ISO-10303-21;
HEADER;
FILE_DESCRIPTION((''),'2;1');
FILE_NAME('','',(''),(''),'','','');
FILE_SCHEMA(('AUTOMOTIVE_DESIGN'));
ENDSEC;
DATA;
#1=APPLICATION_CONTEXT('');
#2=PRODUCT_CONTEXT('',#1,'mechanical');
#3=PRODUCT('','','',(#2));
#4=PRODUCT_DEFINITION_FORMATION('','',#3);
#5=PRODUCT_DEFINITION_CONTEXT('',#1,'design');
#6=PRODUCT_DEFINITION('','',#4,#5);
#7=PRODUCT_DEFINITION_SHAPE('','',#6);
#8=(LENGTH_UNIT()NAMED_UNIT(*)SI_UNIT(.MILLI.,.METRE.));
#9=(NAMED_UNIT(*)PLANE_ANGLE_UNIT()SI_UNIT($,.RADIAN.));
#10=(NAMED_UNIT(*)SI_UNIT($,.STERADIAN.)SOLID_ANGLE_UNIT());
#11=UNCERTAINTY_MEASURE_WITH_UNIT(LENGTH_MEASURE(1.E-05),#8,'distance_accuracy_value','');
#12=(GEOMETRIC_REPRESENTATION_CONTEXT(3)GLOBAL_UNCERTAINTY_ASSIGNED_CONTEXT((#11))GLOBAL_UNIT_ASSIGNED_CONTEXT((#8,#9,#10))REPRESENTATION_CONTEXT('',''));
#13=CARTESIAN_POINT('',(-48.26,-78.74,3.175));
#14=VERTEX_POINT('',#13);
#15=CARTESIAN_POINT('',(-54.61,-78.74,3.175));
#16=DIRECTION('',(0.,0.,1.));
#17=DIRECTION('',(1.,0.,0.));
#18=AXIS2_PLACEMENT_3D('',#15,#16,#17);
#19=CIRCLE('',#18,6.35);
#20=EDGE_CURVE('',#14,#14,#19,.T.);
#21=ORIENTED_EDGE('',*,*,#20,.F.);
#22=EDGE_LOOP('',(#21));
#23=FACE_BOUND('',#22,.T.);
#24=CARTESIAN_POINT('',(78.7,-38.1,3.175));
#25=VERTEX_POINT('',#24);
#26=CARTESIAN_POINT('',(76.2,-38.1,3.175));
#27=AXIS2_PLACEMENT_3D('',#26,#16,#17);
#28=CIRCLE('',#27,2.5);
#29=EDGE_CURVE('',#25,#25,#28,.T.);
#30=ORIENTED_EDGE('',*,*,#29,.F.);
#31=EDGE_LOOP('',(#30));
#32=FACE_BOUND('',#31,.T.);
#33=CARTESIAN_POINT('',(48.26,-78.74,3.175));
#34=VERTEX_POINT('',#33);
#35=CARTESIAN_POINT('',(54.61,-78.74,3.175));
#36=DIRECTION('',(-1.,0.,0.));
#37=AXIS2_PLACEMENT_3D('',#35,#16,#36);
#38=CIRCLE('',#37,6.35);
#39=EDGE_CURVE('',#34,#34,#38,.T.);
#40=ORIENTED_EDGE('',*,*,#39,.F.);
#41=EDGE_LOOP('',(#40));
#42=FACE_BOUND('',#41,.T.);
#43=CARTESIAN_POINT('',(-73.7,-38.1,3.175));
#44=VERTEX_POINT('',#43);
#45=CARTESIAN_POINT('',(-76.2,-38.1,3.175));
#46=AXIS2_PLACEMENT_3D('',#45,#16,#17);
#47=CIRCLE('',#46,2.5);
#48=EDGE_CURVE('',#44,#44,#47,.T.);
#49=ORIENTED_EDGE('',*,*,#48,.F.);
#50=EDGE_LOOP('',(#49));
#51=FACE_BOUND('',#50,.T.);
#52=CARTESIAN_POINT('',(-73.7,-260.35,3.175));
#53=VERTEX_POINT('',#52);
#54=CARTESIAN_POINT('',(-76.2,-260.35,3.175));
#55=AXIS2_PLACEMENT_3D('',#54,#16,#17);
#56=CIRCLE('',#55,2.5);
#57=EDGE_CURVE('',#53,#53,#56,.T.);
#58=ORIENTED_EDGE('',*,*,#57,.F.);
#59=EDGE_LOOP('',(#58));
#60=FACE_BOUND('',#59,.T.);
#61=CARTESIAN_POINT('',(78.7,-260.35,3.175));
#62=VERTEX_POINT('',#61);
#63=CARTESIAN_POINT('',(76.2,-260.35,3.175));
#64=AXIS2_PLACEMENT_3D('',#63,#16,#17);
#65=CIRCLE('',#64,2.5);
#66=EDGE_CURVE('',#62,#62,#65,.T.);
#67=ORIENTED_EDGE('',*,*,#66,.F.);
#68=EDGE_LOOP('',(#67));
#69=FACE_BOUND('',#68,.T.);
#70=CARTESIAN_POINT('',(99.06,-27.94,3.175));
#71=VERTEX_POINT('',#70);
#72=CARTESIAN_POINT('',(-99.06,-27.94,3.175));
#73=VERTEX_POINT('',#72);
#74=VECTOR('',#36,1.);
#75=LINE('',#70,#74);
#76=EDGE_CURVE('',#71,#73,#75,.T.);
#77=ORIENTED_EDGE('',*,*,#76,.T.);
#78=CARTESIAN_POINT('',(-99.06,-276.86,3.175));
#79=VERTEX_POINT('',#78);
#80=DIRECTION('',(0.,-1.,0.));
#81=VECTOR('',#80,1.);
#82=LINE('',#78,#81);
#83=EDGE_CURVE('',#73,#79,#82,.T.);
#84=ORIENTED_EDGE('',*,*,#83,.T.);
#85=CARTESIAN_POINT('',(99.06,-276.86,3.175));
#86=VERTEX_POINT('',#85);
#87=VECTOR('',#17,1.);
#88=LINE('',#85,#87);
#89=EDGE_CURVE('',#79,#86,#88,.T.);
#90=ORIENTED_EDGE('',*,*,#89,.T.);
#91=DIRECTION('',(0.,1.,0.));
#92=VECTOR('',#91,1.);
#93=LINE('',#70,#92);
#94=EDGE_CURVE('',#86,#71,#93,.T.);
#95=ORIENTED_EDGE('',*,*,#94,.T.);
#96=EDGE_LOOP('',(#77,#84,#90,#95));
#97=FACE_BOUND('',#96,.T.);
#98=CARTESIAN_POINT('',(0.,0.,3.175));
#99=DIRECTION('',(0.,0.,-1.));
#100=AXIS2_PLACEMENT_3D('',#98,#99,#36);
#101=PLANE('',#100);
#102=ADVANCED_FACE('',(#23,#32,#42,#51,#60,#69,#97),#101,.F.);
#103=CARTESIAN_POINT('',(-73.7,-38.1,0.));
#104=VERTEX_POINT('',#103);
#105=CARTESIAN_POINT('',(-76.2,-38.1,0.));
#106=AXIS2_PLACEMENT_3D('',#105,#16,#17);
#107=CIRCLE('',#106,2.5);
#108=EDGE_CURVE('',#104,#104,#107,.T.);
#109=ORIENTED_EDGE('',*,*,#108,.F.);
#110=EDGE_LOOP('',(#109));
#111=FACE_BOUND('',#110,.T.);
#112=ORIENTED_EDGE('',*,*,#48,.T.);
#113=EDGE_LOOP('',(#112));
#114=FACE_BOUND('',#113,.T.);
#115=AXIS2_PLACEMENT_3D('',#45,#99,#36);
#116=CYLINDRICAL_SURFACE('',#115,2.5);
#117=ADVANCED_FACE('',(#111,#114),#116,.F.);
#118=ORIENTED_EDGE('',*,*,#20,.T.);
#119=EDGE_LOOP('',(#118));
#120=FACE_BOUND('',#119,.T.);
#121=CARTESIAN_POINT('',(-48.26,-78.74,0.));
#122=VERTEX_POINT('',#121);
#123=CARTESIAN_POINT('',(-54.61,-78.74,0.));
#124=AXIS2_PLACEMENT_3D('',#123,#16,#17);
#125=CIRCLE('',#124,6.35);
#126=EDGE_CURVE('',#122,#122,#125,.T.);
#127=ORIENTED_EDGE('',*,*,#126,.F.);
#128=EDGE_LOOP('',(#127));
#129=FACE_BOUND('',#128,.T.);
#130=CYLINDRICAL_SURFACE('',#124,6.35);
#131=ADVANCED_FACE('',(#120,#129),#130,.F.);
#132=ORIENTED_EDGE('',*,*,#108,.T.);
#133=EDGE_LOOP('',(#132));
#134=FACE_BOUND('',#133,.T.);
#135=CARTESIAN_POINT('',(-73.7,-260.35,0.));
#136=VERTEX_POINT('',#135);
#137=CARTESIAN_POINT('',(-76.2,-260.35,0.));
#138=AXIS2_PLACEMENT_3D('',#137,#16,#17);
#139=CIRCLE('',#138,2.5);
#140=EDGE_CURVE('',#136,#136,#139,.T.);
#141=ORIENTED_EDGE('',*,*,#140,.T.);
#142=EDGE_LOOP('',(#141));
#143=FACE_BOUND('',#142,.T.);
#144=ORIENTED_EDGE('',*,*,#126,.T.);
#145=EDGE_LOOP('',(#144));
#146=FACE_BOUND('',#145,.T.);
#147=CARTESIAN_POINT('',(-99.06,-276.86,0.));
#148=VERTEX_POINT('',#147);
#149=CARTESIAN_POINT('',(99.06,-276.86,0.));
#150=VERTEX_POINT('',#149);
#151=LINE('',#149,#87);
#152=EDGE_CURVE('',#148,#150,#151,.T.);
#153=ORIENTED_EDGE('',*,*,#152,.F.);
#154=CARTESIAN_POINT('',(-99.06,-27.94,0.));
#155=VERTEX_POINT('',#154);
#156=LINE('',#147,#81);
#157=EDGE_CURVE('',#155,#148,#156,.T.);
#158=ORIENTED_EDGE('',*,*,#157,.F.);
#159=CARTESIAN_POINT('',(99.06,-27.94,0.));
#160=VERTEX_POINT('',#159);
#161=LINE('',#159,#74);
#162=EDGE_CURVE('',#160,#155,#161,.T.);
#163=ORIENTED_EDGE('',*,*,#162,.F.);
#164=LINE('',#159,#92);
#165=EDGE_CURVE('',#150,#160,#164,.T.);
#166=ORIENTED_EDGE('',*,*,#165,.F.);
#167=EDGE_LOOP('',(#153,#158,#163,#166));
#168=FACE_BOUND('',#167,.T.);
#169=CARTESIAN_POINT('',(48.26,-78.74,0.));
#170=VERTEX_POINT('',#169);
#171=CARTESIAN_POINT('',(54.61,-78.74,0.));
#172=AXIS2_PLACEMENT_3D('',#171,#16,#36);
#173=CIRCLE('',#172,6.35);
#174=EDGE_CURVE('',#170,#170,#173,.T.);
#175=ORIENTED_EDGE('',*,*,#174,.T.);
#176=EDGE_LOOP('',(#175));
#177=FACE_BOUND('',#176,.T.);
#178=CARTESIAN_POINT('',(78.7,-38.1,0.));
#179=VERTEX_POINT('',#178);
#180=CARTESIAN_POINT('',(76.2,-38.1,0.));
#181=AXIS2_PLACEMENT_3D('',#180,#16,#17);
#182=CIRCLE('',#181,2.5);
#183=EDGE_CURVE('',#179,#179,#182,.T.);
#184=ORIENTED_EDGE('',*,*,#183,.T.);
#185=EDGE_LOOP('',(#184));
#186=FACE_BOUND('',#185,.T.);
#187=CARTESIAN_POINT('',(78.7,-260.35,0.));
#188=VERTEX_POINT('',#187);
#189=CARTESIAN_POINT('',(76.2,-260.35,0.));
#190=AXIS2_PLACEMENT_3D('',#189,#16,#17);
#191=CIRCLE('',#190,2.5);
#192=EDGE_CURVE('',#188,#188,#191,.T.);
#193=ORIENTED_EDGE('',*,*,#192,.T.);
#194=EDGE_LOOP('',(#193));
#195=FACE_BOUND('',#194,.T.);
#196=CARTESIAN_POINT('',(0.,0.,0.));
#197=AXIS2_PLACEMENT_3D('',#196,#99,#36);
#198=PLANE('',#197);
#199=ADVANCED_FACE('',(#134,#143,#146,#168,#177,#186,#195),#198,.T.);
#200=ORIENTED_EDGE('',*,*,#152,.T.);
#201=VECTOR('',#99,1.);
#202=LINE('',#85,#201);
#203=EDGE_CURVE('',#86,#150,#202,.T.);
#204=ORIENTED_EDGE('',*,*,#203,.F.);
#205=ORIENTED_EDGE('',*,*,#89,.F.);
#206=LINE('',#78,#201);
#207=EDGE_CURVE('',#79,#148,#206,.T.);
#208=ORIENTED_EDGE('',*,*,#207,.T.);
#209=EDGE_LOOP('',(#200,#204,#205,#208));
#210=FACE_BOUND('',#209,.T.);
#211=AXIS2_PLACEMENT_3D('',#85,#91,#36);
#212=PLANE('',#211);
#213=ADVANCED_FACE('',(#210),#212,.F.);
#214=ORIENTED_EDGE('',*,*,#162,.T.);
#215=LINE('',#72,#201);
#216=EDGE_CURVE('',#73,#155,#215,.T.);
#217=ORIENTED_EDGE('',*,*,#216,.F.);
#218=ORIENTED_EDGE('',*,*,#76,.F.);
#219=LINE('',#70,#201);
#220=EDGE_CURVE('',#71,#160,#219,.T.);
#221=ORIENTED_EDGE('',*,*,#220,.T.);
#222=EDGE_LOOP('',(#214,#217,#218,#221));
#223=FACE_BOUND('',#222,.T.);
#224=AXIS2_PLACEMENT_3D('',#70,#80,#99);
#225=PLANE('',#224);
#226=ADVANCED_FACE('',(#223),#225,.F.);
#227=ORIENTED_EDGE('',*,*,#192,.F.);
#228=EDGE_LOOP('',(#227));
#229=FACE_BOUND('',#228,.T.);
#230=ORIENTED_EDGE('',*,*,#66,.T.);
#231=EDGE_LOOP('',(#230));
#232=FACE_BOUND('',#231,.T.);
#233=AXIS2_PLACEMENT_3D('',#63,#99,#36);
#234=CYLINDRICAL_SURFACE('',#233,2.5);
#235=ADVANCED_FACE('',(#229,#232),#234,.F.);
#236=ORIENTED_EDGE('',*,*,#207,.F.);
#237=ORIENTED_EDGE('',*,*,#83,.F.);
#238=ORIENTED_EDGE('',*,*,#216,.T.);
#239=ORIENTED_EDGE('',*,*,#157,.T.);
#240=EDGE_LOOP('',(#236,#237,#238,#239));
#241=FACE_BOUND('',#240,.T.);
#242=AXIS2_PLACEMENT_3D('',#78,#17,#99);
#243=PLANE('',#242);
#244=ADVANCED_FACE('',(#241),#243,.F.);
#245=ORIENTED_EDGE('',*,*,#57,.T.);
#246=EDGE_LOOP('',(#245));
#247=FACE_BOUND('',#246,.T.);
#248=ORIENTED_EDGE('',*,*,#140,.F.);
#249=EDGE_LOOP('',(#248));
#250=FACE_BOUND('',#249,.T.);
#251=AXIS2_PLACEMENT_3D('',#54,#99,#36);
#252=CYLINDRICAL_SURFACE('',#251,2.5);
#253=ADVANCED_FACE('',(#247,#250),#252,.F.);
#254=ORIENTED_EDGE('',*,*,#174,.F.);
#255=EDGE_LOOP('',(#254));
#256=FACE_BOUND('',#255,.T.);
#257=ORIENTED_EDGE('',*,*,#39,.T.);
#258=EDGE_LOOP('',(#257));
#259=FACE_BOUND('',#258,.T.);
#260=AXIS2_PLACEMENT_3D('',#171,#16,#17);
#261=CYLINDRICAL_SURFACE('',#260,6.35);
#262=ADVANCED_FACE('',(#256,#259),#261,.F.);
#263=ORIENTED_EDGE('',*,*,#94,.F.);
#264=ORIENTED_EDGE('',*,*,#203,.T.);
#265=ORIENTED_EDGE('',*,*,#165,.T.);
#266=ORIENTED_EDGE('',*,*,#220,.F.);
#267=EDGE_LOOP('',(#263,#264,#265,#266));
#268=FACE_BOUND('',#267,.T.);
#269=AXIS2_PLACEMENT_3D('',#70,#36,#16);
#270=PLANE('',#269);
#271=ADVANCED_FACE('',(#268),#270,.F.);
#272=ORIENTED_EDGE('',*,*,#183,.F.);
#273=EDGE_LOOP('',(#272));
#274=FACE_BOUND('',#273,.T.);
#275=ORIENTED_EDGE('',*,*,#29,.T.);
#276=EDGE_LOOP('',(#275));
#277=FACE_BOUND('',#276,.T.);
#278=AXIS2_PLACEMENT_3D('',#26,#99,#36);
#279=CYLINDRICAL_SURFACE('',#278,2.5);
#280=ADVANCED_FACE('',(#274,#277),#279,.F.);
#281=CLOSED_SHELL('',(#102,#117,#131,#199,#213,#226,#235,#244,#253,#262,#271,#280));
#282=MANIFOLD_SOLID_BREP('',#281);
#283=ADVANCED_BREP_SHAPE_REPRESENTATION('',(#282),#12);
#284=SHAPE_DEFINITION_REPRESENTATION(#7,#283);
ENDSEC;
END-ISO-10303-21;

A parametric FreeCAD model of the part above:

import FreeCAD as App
import Part
import Sketcher
from FreeCAD import Vector
Q = App.Units.Quantity

doc = App.newDocument("Part")
body = doc.addObject("PartDesign::Body", "Body")

sketch1 = doc.addObject("Sketcher::SketchObject", "Sketch")
body.addObject(sketch1)
sketch1.AttachmentSupport = (doc.XY_Plane, [""])
sketch1.MapMode = "FlatFace"
sketch1.addGeometry([
    Part.LineSegment(Vector(-99.1, -27.9, 0), Vector(-99.1, -276.9, 0)),
    Part.LineSegment(Vector(-99.1, -276.9, 0), Vector(99.1, -276.9, 0)),
    Part.LineSegment(Vector(99.1, -276.9, 0), Vector(99.1, -27.9, 0)),
    Part.LineSegment(Vector(99.1, -27.9, 0), Vector(-99.1, -27.9, 0)),
    Part.Circle(Vector(-76.2, -260.4, 0), Vector(0, 0, 1), 2.5),
    Part.Circle(Vector(76.2, -260.4, 0), Vector(0, 0, 1), 2.5),
    Part.Circle(Vector(-76.2, -38.1, 0), Vector(0, 0, 1), 2.5),
    Part.Circle(Vector(76.2, -38.1, 0), Vector(0, 0, 1), 2.5),
], False)
sketch1.addConstraint([
    Sketcher.Constraint("Coincident", 0, 2, 1, 1),
    Sketcher.Constraint("Coincident", 1, 2, 2, 1),
    Sketcher.Constraint("Coincident", 2, 2, 3, 1),
    Sketcher.Constraint("Coincident", 3, 2, 0, 1),
    Sketcher.Constraint("Vertical", 0),
    Sketcher.Constraint("Horizontal", 1),
    Sketcher.Constraint("Vertical", 2),
    Sketcher.Constraint("Horizontal", 3),
    Sketcher.Constraint("Equal", 4, 5),
    Sketcher.Constraint("Equal", 5, 6),
    Sketcher.Constraint("Equal", 6, 7),
    Sketcher.Constraint("Symmetric", 4, 3, 5, 3, -2),
    Sketcher.Constraint("Symmetric", 6, 3, 7, 3, -2),
    Sketcher.Constraint("Vertical", 4, 3, 6, 3),
    Sketcher.Constraint("DistanceX", 1, 1, 1, 2, Q("7.8 in")),
    Sketcher.Constraint("DistanceY", 0, 2, 0, 1, Q("9.8 in")),
    Sketcher.Constraint("DistanceX", 4, 3, -1, 1, Q("3 in")),
    Sketcher.Constraint("DistanceY", 6, 3, -1, 1, Q("1.5 in")),
    Sketcher.Constraint("DistanceX", 0, 2, -1, 1, Q("3.9 in")),
    Sketcher.Constraint("DistanceY", 0, 2, -1, 1, Q("10.9 in")),
    Sketcher.Constraint("Diameter", 4, 5.0),
    Sketcher.Constraint("DistanceY", 4, 3, -1, 1, Q("10.25 in")),
])
pad1 = doc.addObject("PartDesign::Pad", "Pad")
body.addObject(pad1)
pad1.Profile = sketch1
pad1.Length = Q("0.125 in")

sketch2 = doc.addObject("Sketcher::SketchObject", "Sketch001")
body.addObject(sketch2)
sketch2.AttachmentSupport = (doc.XY_Plane, [""])
sketch2.MapMode = "FlatFace"
sketch2.AttachmentOffset = App.Placement(Vector(0, 0, 0.125 * 25.4), App.Rotation())
sketch2.addGeometry([
    Part.Circle(Vector(-55, -79, 0), Vector(0, 0, 1), 6),
    Part.Circle(Vector(55, -79, 0), Vector(0, 0, 1), 6),
], False)
sketch2.addConstraint([
    Sketcher.Constraint("Equal", 0, 1),
    Sketcher.Constraint("Symmetric", 0, 3, 1, 3, -2),
    Sketcher.Constraint("Diameter", 0, Q("0.5 in")),
    Sketcher.Constraint("DistanceY", 0, 3, -1, 1, Q("3.1 in")),
    Sketcher.Constraint("DistanceX", 0, 3, 1, 3, Q("4.3 in")),
])
pocket1 = doc.addObject("PartDesign::Pocket", "Pocket")
body.addObject(pocket1)
pocket1.Profile = sketch2
pocket1.Type = "ThroughAll"

doc.recompute()
